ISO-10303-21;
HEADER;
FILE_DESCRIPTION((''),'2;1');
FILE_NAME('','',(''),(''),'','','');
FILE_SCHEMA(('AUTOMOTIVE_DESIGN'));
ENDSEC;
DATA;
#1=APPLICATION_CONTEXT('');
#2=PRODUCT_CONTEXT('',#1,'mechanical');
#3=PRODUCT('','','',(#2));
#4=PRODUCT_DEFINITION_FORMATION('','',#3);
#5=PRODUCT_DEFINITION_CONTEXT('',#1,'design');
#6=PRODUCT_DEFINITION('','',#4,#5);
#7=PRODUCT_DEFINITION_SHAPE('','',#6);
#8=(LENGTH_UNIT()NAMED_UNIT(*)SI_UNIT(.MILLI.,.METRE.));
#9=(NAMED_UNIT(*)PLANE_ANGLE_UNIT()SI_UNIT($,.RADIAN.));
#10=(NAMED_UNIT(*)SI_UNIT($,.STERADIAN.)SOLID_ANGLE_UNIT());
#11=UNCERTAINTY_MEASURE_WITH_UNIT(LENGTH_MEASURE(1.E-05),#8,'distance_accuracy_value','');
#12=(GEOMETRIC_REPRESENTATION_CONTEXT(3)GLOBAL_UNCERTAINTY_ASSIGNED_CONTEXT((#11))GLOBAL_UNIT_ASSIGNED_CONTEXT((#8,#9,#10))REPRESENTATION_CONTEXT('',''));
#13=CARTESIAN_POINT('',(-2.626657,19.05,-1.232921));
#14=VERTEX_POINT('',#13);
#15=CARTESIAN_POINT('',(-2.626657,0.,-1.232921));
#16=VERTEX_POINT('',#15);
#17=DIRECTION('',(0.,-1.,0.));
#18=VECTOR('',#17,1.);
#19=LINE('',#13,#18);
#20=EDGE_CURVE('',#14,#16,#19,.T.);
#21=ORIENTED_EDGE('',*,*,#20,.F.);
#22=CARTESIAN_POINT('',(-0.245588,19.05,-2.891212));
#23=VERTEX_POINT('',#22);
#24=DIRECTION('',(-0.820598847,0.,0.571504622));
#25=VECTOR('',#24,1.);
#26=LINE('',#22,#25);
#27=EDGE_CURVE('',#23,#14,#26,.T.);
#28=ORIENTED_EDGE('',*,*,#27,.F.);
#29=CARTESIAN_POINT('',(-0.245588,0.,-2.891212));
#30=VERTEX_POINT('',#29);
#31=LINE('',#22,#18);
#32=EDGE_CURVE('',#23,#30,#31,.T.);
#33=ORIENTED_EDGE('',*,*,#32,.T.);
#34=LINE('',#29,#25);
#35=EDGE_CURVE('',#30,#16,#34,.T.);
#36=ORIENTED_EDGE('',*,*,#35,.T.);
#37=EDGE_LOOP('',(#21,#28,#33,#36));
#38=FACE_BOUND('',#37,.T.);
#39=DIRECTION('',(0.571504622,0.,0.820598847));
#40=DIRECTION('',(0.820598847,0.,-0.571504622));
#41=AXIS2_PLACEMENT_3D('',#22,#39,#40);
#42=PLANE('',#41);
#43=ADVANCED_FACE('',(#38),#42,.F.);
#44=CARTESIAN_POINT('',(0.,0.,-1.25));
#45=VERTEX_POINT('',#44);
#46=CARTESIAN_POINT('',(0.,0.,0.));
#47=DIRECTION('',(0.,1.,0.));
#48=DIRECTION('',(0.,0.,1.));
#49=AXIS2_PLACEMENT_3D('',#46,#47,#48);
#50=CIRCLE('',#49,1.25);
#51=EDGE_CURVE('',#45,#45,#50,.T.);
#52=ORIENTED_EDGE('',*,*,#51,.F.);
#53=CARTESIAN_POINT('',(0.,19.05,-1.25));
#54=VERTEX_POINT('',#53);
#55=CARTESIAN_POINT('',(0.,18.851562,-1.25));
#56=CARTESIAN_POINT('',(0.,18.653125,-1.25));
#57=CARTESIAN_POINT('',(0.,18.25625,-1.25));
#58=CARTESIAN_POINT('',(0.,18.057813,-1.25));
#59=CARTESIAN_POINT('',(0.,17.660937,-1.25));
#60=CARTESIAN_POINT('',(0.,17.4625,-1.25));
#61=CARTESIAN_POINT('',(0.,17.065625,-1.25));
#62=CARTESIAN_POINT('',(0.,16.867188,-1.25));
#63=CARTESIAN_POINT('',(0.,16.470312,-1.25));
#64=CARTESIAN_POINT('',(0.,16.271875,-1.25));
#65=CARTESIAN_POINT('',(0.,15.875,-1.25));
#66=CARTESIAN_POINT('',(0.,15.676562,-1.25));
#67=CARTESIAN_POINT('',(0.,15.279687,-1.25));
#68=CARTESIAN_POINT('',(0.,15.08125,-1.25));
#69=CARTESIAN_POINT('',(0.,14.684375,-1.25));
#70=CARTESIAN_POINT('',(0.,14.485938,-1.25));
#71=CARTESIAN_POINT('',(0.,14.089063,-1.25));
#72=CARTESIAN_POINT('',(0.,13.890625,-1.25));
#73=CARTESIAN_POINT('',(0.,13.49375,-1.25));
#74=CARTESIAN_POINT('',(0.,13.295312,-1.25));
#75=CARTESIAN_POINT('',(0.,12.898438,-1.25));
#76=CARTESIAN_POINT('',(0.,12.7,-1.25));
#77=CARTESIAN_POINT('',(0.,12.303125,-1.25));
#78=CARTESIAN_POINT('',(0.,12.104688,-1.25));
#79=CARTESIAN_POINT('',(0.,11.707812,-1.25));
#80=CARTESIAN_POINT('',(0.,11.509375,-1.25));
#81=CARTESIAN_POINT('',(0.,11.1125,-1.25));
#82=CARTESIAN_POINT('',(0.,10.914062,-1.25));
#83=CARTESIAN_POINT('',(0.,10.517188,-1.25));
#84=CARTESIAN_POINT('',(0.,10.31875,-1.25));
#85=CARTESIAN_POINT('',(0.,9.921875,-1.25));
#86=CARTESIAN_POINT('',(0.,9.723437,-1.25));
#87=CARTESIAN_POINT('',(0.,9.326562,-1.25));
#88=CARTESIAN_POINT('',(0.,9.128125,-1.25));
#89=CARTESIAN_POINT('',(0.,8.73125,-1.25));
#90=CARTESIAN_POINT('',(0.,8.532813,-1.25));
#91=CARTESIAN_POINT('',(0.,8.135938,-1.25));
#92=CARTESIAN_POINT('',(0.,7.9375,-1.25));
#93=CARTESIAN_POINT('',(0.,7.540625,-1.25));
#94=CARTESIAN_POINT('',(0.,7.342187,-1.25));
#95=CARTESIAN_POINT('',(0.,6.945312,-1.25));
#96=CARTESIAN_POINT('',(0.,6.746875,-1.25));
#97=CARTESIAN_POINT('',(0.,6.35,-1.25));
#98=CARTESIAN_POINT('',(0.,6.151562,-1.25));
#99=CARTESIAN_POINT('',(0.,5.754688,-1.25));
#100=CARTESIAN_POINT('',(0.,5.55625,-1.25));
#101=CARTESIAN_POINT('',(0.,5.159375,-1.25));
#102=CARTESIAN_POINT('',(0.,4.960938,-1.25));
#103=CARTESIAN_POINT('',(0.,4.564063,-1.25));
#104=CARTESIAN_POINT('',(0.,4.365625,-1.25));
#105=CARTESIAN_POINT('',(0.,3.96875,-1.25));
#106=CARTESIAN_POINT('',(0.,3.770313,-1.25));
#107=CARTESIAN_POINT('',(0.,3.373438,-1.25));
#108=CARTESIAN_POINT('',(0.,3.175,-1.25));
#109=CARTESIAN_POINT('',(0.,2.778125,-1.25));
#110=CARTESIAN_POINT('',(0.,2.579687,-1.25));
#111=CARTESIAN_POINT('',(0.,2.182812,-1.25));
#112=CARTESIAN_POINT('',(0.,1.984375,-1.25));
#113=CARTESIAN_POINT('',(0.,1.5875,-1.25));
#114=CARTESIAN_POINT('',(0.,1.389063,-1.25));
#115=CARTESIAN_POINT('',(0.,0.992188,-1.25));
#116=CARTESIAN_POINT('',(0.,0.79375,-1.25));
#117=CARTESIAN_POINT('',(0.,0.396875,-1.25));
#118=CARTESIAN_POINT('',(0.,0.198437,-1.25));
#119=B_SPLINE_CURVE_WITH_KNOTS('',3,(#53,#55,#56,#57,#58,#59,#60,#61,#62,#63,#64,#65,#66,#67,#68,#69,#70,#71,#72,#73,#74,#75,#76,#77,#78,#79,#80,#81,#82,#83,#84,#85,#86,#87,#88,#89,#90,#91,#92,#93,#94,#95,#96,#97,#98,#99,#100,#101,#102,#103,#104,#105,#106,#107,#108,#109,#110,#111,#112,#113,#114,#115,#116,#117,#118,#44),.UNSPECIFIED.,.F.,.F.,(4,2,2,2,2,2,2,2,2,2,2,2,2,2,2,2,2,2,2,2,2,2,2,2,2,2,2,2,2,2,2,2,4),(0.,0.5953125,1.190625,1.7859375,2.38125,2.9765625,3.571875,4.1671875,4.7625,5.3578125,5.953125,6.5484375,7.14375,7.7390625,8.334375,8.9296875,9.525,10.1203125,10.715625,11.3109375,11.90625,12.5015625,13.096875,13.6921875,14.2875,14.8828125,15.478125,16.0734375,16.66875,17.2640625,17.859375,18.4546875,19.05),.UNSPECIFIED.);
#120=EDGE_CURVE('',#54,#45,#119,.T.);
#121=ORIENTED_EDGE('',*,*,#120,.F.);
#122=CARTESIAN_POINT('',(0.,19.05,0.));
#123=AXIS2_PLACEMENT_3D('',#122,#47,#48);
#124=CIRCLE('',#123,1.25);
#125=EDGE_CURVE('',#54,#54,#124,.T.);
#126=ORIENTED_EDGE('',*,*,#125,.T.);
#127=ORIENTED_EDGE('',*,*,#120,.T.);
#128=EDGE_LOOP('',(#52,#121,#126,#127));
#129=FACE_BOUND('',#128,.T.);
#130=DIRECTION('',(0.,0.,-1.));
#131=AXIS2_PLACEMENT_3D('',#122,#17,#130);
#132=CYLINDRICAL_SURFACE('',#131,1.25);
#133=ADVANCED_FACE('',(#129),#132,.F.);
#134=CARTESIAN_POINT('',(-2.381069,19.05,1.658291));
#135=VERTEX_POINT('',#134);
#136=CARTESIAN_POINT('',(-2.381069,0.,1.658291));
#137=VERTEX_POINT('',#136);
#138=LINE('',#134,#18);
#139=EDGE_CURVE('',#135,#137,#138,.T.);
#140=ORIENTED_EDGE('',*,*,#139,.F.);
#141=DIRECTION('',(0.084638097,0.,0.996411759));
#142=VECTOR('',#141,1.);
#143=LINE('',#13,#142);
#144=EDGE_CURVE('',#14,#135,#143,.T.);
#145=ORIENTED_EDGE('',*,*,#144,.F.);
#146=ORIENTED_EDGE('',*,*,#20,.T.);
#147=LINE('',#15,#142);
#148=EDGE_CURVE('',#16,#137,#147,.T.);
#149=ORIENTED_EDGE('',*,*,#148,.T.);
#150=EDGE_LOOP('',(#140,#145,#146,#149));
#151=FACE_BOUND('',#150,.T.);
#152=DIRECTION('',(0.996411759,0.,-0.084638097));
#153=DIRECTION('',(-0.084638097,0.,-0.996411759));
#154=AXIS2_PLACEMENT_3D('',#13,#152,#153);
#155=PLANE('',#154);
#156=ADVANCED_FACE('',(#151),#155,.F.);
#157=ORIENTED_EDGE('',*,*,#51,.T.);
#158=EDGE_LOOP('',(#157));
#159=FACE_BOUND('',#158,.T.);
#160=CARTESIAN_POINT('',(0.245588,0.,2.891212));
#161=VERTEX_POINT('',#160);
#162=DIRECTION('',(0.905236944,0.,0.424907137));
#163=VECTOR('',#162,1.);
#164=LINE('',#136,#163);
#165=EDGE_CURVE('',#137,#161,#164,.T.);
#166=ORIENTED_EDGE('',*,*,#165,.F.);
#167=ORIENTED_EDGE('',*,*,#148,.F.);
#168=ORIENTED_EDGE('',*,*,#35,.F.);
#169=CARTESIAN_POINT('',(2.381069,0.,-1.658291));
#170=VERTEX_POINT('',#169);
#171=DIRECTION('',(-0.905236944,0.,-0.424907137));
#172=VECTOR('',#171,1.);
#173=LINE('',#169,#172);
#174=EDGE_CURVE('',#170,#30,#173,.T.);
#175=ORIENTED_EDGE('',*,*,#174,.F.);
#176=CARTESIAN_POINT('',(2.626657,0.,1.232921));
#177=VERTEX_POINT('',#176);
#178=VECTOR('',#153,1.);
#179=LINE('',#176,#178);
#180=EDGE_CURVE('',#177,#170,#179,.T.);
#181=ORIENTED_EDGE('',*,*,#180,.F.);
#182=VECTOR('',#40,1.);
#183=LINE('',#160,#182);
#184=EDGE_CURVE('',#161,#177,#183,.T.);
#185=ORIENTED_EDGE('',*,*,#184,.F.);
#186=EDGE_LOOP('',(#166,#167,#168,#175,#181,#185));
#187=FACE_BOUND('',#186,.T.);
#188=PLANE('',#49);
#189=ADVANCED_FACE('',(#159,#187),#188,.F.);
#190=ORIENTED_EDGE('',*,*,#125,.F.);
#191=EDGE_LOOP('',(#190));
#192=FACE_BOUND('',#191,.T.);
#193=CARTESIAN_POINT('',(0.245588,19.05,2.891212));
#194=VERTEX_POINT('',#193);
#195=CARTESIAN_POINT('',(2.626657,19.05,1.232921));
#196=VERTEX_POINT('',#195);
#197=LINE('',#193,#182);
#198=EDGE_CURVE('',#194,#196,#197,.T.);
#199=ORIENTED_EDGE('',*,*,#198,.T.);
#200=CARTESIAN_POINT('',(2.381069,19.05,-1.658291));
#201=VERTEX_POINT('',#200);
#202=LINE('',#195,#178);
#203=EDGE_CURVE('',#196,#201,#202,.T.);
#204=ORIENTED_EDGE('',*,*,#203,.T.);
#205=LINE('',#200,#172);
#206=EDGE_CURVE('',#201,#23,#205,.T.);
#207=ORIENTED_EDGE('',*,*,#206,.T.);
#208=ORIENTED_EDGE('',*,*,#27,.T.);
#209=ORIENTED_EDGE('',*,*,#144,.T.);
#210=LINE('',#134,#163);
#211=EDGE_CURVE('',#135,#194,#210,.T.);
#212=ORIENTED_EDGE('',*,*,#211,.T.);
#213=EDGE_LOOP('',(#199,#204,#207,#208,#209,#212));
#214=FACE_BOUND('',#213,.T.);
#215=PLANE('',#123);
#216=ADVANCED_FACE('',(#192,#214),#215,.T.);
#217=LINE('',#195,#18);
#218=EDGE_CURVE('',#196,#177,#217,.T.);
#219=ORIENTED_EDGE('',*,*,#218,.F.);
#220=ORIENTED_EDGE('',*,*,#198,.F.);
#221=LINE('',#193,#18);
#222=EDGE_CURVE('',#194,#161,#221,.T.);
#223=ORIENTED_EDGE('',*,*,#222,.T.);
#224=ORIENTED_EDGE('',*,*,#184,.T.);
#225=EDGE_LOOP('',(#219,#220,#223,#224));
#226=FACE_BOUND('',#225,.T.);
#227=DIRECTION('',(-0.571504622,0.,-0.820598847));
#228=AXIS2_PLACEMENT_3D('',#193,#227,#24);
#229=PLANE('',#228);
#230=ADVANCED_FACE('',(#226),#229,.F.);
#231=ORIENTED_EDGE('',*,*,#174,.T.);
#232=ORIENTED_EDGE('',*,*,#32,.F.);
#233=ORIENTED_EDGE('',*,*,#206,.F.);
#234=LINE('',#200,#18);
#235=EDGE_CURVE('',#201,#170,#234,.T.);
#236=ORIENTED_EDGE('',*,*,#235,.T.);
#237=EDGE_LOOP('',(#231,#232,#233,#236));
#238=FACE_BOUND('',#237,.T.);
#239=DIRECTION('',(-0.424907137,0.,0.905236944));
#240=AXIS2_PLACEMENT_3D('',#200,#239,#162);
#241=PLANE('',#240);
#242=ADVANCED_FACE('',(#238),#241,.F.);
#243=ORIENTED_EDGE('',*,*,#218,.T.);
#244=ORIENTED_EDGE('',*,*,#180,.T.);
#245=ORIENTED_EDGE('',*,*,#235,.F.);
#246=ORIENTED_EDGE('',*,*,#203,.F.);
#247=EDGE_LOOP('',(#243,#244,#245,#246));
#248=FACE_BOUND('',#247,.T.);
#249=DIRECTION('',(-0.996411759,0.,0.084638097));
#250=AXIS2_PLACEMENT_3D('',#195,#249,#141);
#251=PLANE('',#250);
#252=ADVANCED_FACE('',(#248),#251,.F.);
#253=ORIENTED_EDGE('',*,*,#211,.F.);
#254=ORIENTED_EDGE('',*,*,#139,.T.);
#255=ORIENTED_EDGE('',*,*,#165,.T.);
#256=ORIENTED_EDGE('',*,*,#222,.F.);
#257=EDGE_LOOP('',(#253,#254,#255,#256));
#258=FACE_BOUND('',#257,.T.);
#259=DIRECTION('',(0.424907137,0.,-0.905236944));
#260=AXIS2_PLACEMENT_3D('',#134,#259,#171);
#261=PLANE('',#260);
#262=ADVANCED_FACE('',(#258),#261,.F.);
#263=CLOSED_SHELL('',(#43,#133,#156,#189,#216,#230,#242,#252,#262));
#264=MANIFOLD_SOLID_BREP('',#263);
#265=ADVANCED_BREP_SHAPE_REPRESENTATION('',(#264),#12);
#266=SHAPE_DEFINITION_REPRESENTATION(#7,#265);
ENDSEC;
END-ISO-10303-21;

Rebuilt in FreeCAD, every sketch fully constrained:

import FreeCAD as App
import Part
import Sketcher
from FreeCAD import Vector
Q = App.Units.Quantity

doc = App.newDocument("Part")
body = doc.addObject("PartDesign::Body", "Body")

# Sketch on XZ plane
sketch1 = body.newObject("Sketcher::SketchObject", "Sketch")
sketch1.AttachmentSupport = (doc.getObject("XZ_Plane"), [""])
sketch1.MapMode = "FlatFace"
sketch1.addGeometry([
    Part.LineSegment(Vector(2.6, 1.2, 0), Vector(2.4, -1.7, 0)),  # 0
    Part.LineSegment(Vector(2.4, -1.7, 0), Vector(-0.2, -2.9, 0)),  # 1
    Part.LineSegment(Vector(-0.2, -2.9, 0), Vector(-2.6, -1.2, 0)),  # 2
    Part.LineSegment(Vector(-2.6, -1.2, 0), Vector(-2.4, 1.7, 0)),  # 3
    Part.LineSegment(Vector(-2.4, 1.7, 0), Vector(0.2, 2.9, 0)),  # 4
    Part.LineSegment(Vector(0.2, 2.9, 0), Vector(2.6, 1.2, 0)),  # 5
    Part.Circle(Vector(0, 0, 0), Vector(0, 0, 1), 1.2),  # 6
], False)
sketch1.addConstraint([
    Sketcher.Constraint("Coincident", 0, 2, 1, 1),
    Sketcher.Constraint("Coincident", 1, 2, 2, 1),
    Sketcher.Constraint("Coincident", 2, 2, 3, 1),
    Sketcher.Constraint("Coincident", 3, 2, 4, 1),
    Sketcher.Constraint("Coincident", 4, 2, 5, 1),
    Sketcher.Constraint("Coincident", 5, 2, 0, 1),
    Sketcher.Constraint("Coincident", 6, 3, -1, 1),
    Sketcher.Constraint("Symmetric", 0, 2, 3, 2, -1, 1),
    Sketcher.Constraint("Symmetric", 1, 2, 4, 2, -1, 1),
    Sketcher.Constraint("Symmetric", 2, 2, 5, 2, -1, 1),
    Sketcher.Constraint("Equal", 0, 1),
    Sketcher.Constraint("Equal", 1, 2),
    Sketcher.Constraint("Diameter", 6, Q("2.5 mm")),
    Sketcher.Constraint("DistanceX", -1, 1, 0, 2, Q("2.381069 mm")),
    Sketcher.Constraint("DistanceY", 0, 2, -1, 1, Q("1.658291 mm")),
    Sketcher.Constraint("DistanceY", 1, 2, -1, 1, Q("2.891212 mm")),
    Sketcher.Constraint("DistanceY", 2, 2, -1, 1, Q("1.232921 mm")),
])
pad1 = body.newObject("PartDesign::Pad", "Pad")
pad1.Profile = sketch1
pad1.Length = 19.05
pad1.Reversed = True

doc.recompute()
